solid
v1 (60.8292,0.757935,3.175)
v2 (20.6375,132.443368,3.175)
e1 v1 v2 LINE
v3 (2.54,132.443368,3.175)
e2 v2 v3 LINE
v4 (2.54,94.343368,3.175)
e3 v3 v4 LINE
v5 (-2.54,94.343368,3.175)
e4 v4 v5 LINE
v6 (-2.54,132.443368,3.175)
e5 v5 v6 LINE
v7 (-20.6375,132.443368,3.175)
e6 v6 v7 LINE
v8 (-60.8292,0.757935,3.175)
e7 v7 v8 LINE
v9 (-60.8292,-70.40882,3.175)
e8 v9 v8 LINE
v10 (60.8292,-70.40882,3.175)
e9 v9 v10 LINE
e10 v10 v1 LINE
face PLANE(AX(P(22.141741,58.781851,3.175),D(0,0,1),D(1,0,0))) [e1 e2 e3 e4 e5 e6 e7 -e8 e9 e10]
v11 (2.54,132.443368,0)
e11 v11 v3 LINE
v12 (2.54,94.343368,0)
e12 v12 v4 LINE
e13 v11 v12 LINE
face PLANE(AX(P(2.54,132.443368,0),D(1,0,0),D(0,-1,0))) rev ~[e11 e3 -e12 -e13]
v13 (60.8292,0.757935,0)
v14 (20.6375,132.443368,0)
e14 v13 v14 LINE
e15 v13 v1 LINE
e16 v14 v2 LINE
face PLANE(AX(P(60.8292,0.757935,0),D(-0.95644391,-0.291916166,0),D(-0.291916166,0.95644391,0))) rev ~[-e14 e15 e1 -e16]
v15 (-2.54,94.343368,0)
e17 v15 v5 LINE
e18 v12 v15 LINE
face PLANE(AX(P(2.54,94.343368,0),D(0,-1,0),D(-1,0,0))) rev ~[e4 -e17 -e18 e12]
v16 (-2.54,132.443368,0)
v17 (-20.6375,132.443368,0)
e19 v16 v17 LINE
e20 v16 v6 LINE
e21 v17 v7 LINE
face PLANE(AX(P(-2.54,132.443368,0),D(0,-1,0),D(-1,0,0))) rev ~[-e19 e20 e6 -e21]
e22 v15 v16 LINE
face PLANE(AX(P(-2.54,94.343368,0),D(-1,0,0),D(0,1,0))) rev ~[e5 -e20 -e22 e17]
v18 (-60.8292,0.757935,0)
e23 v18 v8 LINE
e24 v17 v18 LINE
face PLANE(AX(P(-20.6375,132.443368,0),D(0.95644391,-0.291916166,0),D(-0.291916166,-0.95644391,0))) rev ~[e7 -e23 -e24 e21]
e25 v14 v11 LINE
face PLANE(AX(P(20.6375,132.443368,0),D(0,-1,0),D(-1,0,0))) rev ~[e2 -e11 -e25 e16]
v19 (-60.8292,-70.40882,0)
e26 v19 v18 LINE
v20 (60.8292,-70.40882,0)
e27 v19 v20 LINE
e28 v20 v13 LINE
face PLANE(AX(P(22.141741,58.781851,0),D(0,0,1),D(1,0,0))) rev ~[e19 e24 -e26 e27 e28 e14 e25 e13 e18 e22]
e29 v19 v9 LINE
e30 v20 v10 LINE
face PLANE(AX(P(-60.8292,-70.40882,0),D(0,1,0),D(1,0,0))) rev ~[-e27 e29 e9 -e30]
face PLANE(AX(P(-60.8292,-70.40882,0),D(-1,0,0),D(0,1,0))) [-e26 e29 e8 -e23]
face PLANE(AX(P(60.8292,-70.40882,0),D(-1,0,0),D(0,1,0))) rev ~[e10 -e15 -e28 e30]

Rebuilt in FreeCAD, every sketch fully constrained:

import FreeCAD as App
import Part
import Sketcher
Q = App.Units.Quantity

doc = App.newDocument("Part")
params = doc.addObject("Spreadsheet::Sheet", "Params")
for row, (alias, value) in enumerate([
    ("sketch1_width", "0.2 in"),
    ("sketch1_height", "1.5 in"),
    ("pad1_length", "0.125 in"),
    ("sketch2_width", "0.2 in"),
    ("sketch2_height", "1.5 in"),
    ("pocket1_length", "0.125 in"),
], start=1):
    params.set(f"A{row}", alias)
    params.set(f"B{row}", "=" + value)
    params.setAlias(f"B{row}", alias)

body = doc.addObject("PartDesign::Body", "Body")

sketch1 = body.newObject("Sketcher::SketchObject", "Sketch")
sketch1.AttachmentSupport = (doc.getObject("XY_Plane"), [""])
sketch1.MapMode = "FlatFace"
sketch1.addGeometry([
    Part.LineSegment(App.Vector(-60.8292, -70.40882, 0), App.Vector(60.8292, -70.40882, 0)),
    Part.LineSegment(App.Vector(60.8292, -70.40882, 0), App.Vector(60.8292, 0.757935, 0)),
    Part.LineSegment(App.Vector(60.8292, 0.757935, 0), App.Vector(20.6375, 132.443368, 0)),
    Part.LineSegment(App.Vector(20.6375, 132.443368, 0), App.Vector(2.54, 132.443368, 0)),
    Part.LineSegment(App.Vector(2.54, 132.443368, 0), App.Vector(2.54, 94.343368, 0)),
    Part.LineSegment(App.Vector(2.54, 94.343368, 0), App.Vector(-2.54, 94.343368, 0)),
    Part.LineSegment(App.Vector(-2.54, 94.343368, 0), App.Vector(-2.54, 132.443368, 0)),
    Part.LineSegment(App.Vector(-2.54, 132.443368, 0), App.Vector(-20.6375, 132.443368, 0)),
    Part.LineSegment(App.Vector(-20.6375, 132.443368, 0), App.Vector(-60.8292, 0.757935, 0)),
    Part.LineSegment(App.Vector(-60.8292, 0.757935, 0), App.Vector(-60.8292, -70.40882, 0)),
], False)
sketch1.addConstraint([
    Sketcher.Constraint("Coincident", 0, 2, 1, 1),
    Sketcher.Constraint("Coincident", 1, 2, 2, 1),
    Sketcher.Constraint("Coincident", 2, 2, 3, 1),
    Sketcher.Constraint("Coincident", 3, 2, 4, 1),
    Sketcher.Constraint("Coincident", 4, 2, 5, 1),
    Sketcher.Constraint("Coincident", 5, 2, 6, 1),
    Sketcher.Constraint("Coincident", 6, 2, 7, 1),
    Sketcher.Constraint("Coincident", 7, 2, 8, 1),
    Sketcher.Constraint("Coincident", 8, 2, 9, 1),
    Sketcher.Constraint("Coincident", 9, 2, 0, 1),
    Sketcher.Constraint("Horizontal", 0),
    Sketcher.Constraint("Vertical", 1),
    Sketcher.Constraint("Horizontal", 3),
    Sketcher.Constraint("Vertical", 4),
    Sketcher.Constraint("Horizontal", 5),
    Sketcher.Constraint("Vertical", 6),
    Sketcher.Constraint("Horizontal", 7),
    Sketcher.Constraint("Vertical", 9),
    Sketcher.Constraint("Symmetric", 3, 2, 6, 2, -2),
    Sketcher.Constraint("Symmetric", 1, 2, 8, 2, -2),
    Sketcher.Constraint("Equal", 3, 7),
    Sketcher.Constraint("DistanceX", 5, 2, 5, 1, Q("0.2 in")),
    Sketcher.Constraint("DistanceY", 4, 2, 4, 1, Q("1.5 in")),
    Sketcher.Constraint("DistanceX", 3, 2, 3, 1, Q("0.7125 in")),
    Sketcher.Constraint("DistanceX", 0, 1, 0, 2, 121.6584),
    Sketcher.Constraint("DistanceY", 1, 1, 1, 2, 71.166755),
    Sketcher.Constraint("DistanceY", 0, 2, -1, 1, 70.40882),
    Sketcher.Constraint("DistanceY", -1, 1, 2, 2, 132.443368),
])
sketch1.setExpression("Constraints[21]", "Params.sketch1_width")
sketch1.setExpression("Constraints[22]", "Params.sketch1_height")
pad1 = body.newObject("PartDesign::Pad", "Pad")
pad1.Profile = sketch1
pad1.setExpression("Length", "Params.pad1_length")

sketch2 = body.newObject("Sketcher::SketchObject", "Sketch001")
sketch2.AttachmentSupport = (doc.getObject("XY_Plane"), [""])
sketch2.MapMode = "FlatFace"
sketch2.addGeometry([
    Part.LineSegment(App.Vector(-2.54, 132.443368, 0), App.Vector(-2.54, 94.343368, 0)),
    Part.LineSegment(App.Vector(-2.54, 94.343368, 0), App.Vector(2.54, 94.343368, 0)),
    Part.LineSegment(App.Vector(2.54, 94.343368, 0), App.Vector(2.54, 132.443368, 0)),
    Part.LineSegment(App.Vector(2.54, 132.443368, 0), App.Vector(-2.54, 132.443368, 0)),
], False)
sketch2.addConstraint([
    Sketcher.Constraint("Coincident", 0, 2, 1, 1),
    Sketcher.Constraint("Coincident", 1, 2, 2, 1),
    Sketcher.Constraint("Coincident", 2, 2, 3, 1),
    Sketcher.Constraint("Coincident", 3, 2, 0, 1),
    Sketcher.Constraint("Vertical", 0),
    Sketcher.Constraint("Horizontal", 1),
    Sketcher.Constraint("Vertical", 2),
    Sketcher.Constraint("Horizontal", 3),
    Sketcher.Constraint("DistanceX", 1, 1, 1, 2, Q("0.2 in")),
    Sketcher.Constraint("DistanceY", 0, 2, 0, 1, Q("1.5 in")),
    Sketcher.Constraint("DistanceX", 0, 2, -1, 1, Q("0.1 in")),
    Sketcher.Constraint("DistanceY", -1, 1, 0, 2, 94.343368),
])
sketch2.setExpression("Constraints[8]", "Params.sketch2_width")
sketch2.setExpression("Constraints[9]", "Params.sketch2_height")
pocket1 = body.newObject("PartDesign::Pocket", "Pocket")
pocket1.Profile = sketch2
pocket1.setExpression("Length", "Params.pocket1_length")

doc.recompute()
